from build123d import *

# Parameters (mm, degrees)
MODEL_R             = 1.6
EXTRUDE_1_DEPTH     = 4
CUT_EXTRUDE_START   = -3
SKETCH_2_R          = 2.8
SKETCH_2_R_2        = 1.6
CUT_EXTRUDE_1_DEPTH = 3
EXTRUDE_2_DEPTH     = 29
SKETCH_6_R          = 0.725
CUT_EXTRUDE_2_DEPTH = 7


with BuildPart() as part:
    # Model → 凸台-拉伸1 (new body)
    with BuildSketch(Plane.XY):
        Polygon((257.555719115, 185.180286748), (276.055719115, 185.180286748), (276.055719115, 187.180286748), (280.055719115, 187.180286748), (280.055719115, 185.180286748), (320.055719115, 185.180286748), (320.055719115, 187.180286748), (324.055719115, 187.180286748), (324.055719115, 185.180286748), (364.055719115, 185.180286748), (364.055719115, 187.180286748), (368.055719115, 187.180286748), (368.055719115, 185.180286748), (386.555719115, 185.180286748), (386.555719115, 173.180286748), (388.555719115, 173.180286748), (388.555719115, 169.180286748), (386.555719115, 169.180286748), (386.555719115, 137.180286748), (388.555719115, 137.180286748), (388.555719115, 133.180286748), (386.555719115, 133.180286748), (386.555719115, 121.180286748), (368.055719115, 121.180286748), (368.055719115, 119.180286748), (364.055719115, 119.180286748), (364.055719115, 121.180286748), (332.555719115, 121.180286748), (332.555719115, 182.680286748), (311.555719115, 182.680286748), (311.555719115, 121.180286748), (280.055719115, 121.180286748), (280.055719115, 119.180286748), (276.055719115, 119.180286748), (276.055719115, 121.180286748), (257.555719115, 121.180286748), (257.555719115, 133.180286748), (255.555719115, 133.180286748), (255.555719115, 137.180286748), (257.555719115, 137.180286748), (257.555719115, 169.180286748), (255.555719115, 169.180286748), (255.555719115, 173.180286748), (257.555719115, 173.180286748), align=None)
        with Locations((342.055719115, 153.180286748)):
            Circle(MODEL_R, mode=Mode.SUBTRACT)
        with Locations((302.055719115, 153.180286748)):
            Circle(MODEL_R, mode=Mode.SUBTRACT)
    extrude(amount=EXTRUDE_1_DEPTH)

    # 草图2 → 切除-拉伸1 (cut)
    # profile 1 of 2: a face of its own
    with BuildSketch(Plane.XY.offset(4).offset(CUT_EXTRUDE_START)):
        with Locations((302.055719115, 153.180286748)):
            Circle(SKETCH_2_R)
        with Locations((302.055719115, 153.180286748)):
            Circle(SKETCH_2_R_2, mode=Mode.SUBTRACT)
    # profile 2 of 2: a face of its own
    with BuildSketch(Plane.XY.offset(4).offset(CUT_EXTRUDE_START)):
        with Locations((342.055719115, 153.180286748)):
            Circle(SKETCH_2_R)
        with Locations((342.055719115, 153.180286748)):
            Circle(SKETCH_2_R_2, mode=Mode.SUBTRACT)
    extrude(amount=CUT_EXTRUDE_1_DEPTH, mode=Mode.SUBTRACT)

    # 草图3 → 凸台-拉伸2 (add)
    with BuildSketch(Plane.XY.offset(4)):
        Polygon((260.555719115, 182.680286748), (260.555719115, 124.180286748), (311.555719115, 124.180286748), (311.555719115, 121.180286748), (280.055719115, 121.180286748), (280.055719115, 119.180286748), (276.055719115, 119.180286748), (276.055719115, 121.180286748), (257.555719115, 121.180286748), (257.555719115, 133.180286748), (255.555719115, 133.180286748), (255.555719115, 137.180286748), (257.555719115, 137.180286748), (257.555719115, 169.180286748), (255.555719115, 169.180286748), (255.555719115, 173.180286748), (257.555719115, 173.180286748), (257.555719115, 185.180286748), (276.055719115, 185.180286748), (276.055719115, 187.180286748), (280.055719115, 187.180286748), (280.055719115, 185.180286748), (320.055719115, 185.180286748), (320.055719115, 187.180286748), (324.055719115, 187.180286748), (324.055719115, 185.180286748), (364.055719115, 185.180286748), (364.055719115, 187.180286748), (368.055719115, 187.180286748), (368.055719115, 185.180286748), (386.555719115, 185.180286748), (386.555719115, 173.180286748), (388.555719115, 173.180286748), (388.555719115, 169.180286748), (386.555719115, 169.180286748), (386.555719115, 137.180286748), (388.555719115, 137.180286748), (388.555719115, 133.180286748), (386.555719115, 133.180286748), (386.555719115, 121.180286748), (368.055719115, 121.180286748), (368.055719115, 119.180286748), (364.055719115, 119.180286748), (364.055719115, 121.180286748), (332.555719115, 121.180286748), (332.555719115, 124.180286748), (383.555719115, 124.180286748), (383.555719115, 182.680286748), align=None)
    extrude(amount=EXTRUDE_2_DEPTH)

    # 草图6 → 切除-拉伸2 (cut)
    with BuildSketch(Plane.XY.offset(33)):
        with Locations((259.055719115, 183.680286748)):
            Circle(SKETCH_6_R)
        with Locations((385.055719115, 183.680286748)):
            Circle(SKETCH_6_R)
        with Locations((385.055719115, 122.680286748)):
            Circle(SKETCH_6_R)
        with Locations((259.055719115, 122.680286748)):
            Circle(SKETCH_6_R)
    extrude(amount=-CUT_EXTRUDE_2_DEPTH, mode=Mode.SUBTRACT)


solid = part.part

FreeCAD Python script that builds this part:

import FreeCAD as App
import Part
import Sketcher
Q = App.Units.Quantity


def add_polygon(sketch, points):
    """Adds a closed chain of lines whose ends are joined by coincident constraints."""
    first, n = sketch.GeometryCount, len(points)
    for a, b in zip(points, points[1:] + points[:1]):
        sketch.addGeometry(Part.LineSegment(App.Vector(*a, 0), App.Vector(*b, 0)), False)
    for i in range(n):
        sketch.addConstraint(Sketcher.Constraint("Coincident", first + i, 2, first + (i + 1) % n, 1))

doc = App.newDocument("Part")
body = doc.addObject("PartDesign::Body", "Body")

# Sketch on XY plane
sketch1 = body.newObject("Sketcher::SketchObject", "Sketch")
sketch1.AttachmentSupport = (doc.getObject("XY_Plane"), [""])
sketch1.MapMode = "FlatFace"
add_polygon(sketch1, [(276.1, 185.2), (257.6, 185.2), (257.6, 173.2), (255.6, 173.2), (255.6, 169.2), (257.6, 169.2), (257.6, 137.2), (255.6, 137.2), (255.6, 133.2), (257.6, 133.2), (257.6, 121.2), (276.1, 121.2), (276.1, 119.2), (280.1, 119.2), (280.1, 121.2), (311.6, 121.2), (311.6, 182.7), (332.6, 182.7), (332.6, 121.2), (364.1, 121.2), (364.1, 119.2), (368.1, 119.2), (368.1, 121.2), (386.6, 121.2), (386.6, 133.2), (388.6, 133.2), (388.6, 137.2), (386.6, 137.2), (386.6, 169.2), (388.6, 169.2), (388.6, 173.2), (386.6, 173.2), (386.6, 185.2), (368.1, 185.2), (368.1, 187.2), (364.1, 187.2), (364.1, 185.2), (324.1, 185.2), (324.1, 187.2), (320.1, 187.2), (320.1, 185.2), (280.1, 185.2), (280.1, 187.2), (276.1, 187.2)])  # lines 0-43
sketch1.addGeometry(Part.Circle(App.Vector(342.1, 153.2, 0), App.Vector(0, 0, 1), 1.6), False)  # 44
sketch1.addGeometry(Part.Circle(App.Vector(302.1, 153.2, 0), App.Vector(0, 0, 1), 1.6), False)  # 45
sketch1.addConstraint([
    Sketcher.Constraint("Horizontal", 0),
    Sketcher.Constraint("Vertical", 1),
    Sketcher.Constraint("Horizontal", 2),
    Sketcher.Constraint("Vertical", 3),
    Sketcher.Constraint("Horizontal", 4),
    Sketcher.Constraint("Vertical", 5),
    Sketcher.Constraint("Horizontal", 6),
    Sketcher.Constraint("Vertical", 7),
    Sketcher.Constraint("Horizontal", 8),
    Sketcher.Constraint("Vertical", 9),
    Sketcher.Constraint("Horizontal", 10),
    Sketcher.Constraint("Vertical", 11),
    Sketcher.Constraint("Horizontal", 12),
    Sketcher.Constraint("Vertical", 13),
    Sketcher.Constraint("Horizontal", 14),
    Sketcher.Constraint("Vertical", 15),
    Sketcher.Constraint("Horizontal", 16),
    Sketcher.Constraint("Vertical", 17),
    Sketcher.Constraint("Horizontal", 18),
    Sketcher.Constraint("Vertical", 19),
    Sketcher.Constraint("Horizontal", 20),
    Sketcher.Constraint("Vertical", 21),
    Sketcher.Constraint("Horizontal", 22),
    Sketcher.Constraint("Vertical", 23),
    Sketcher.Constraint("Horizontal", 24),
    Sketcher.Constraint("Vertical", 25),
    Sketcher.Constraint("Horizontal", 26),
    Sketcher.Constraint("Vertical", 27),
    Sketcher.Constraint("Horizontal", 28),
    Sketcher.Constraint("Vertical", 29),
    Sketcher.Constraint("Horizontal", 30),
    Sketcher.Constraint("Vertical", 31),
    Sketcher.Constraint("Horizontal", 32),
    Sketcher.Constraint("Vertical", 33),
    Sketcher.Constraint("Horizontal", 34),
    Sketcher.Constraint("Vertical", 35),
    Sketcher.Constraint("Horizontal", 36),
    Sketcher.Constraint("Vertical", 37),
    Sketcher.Constraint("Horizontal", 38),
    Sketcher.Constraint("Vertical", 39),
    Sketcher.Constraint("Horizontal", 40),
    Sketcher.Constraint("Vertical", 41),
    Sketcher.Constraint("Horizontal", 42),
    Sketcher.Constraint("Vertical", 43),
    Sketcher.Constraint("Equal", 44, 45),
    Sketcher.Constraint("Horizontal", 44, 3, 45, 3),
    Sketcher.Constraint("Horizontal", 10, 2, 13, 2),
    Sketcher.Constraint("Horizontal", 14, 2, 17, 2),
    Sketcher.Constraint("Horizontal", 12, 2, 19, 2),
    Sketcher.Constraint("Horizontal", 18, 2, 21, 2),
    Sketcher.Constraint("Horizontal", 8, 2, 23, 2),
    Sketcher.Constraint("Horizontal", 6, 2, 25, 2),
    Sketcher.Constraint("Horizontal", 4, 2, 27, 2),
    Sketcher.Constraint("Horizontal", 2, 2, 29, 2),
    Sketcher.Constraint("Horizontal", 0, 2, 31, 2),
    Sketcher.Constraint("Horizontal", 32, 2, 35, 2),
    Sketcher.Constraint("Horizontal", 34, 2, 37, 2),
    Sketcher.Constraint("Horizontal", 36, 2, 39, 2),
    Sketcher.Constraint("Horizontal", 38, 2, 41, 2),
    Sketcher.Constraint("Vertical", 1, 2, 4, 2),
    Sketcher.Constraint("Vertical", 3, 2, 6, 2),
    Sketcher.Constraint("Vertical", 5, 2, 8, 2),
    Sketcher.Constraint("Vertical", 23, 2, 26, 2),
    Sketcher.Constraint("Vertical", 25, 2, 28, 2),
    Sketcher.Constraint("Vertical", 27, 2, 30, 2),
    Sketcher.Constraint("Vertical", 21, 2, 32, 2),
    Sketcher.Constraint("Vertical", 19, 2, 34, 2),
    Sketcher.Constraint("Vertical", 13, 2, 40, 2),
    Sketcher.Constraint("Vertical", 11, 2, 42, 2),
    Sketcher.Constraint("Equal", 14, 18),
    Sketcher.Constraint("Equal", 12, 20),
    Sketcher.Constraint("Equal", 10, 22),
    Sketcher.Constraint("Equal", 8, 24),
    Sketcher.Constraint("Equal", 34, 38),
    Sketcher.Constraint("Equal", 36, 40),
    Sketcher.Constraint("Equal", 42, 3),
    Sketcher.Constraint("Equal", 3, 7),
    Sketcher.Constraint("Equal", 1, 9),
    Sketcher.Constraint("Equal", 30, 11),
    Sketcher.Constraint("Equal", 21, 33),
    Sketcher.Constraint("Diameter", 44, Q("3.2 mm")),
    Sketcher.Constraint("DistanceX", 2, 2, 2, 1, Q("2 mm")),
    Sketcher.Constraint("DistanceX", 12, 1, 12, 2, Q("4 mm")),
    Sketcher.Constraint("DistanceX", 16, 1, 16, 2, Q("21 mm")),
    Sketcher.Constraint("DistanceX", 36, 2, 36, 1, Q("40 mm")),
    Sketcher.Constraint("DistanceY", 1, 2, 1, 1, Q("12 mm")),
    Sketcher.Constraint("DistanceY", 5, 2, 5, 1, Q("32 mm")),
    Sketcher.Constraint("DistanceX", 0, 2, 0, 1, Q("18.5 mm")),
    Sketcher.Constraint("DistanceY", 15, 1, 15, 2, Q("61.5 mm")),
    Sketcher.Constraint("DistanceX", 45, 3, 44, 3, Q("40 mm")),
    Sketcher.Constraint("DistanceY", 45, 3, 0, 2, Q("32 mm")),
    Sketcher.Constraint("DistanceX", 44, 3, 18, 2, Q("22 mm")),
    Sketcher.Constraint("DistanceX", -1, 1, 44, 3, Q("342.055719 mm")),
    Sketcher.Constraint("DistanceY", -1, 1, 44, 3, Q("153.180287 mm")),
])
pad1 = body.newObject("PartDesign::Pad", "Pad")
pad1.Profile = sketch1
pad1.Length = 4

# Sketch on XY plane
sketch2 = body.newObject("Sketcher::SketchObject", "Sketch001")
sketch2.AttachmentSupport = (doc.getObject("XY_Plane"), [""])
sketch2.MapMode = "FlatFace"
sketch2.AttachmentOffset = App.Placement(App.Vector(0, 0, 1), App.Rotation())
sketch2.addGeometry([
    Part.Circle(App.Vector(302.1, 153.2, 0), App.Vector(0, 0, 1), 2.8),
    Part.Circle(App.Vector(302.1, 153.2, 0), App.Vector(0, 0, 1), 1.6),
    Part.Circle(App.Vector(342.1, 153.2, 0), App.Vector(0, 0, 1), 2.8),
    Part.Circle(App.Vector(342.1, 153.2, 0), App.Vector(0, 0, 1), 1.6),
], False)
sketch2.addConstraint([
    Sketcher.Constraint("Coincident", 1, 3, 0, 3),
    Sketcher.Constraint("Coincident", 3, 3, 2, 3),
    Sketcher.Constraint("Equal", 0, 2),
    Sketcher.Constraint("Equal", 1, 3),
    Sketcher.Constraint("Horizontal", 1, 3, 2, 3),
    Sketcher.Constraint("Diameter", 0, Q("5.6 mm")),
    Sketcher.Constraint("Diameter", 1, Q("3.2 mm")),
    Sketcher.Constraint("DistanceX", 0, 3, 2, 3, Q("40 mm")),
    Sketcher.Constraint("DistanceX", -1, 1, 0, 3, Q("302.055719 mm")),
    Sketcher.Constraint("DistanceY", -1, 1, 0, 3, Q("153.180287 mm")),
])
pocket1 = body.newObject("PartDesign::Pocket", "Pocket")
pocket1.Profile = sketch2
pocket1.Length = 3
pocket1.Reversed = True

# Sketch on XY plane
sketch3 = body.newObject("Sketcher::SketchObject", "Sketch002")
sketch3.AttachmentSupport = (doc.getObject("XY_Plane"), [""])
sketch3.MapMode = "FlatFace"
sketch3.AttachmentOffset = App.Placement(App.Vector(0, 0, 4), App.Rotation())
add_polygon(sketch3, [(260.6, 124.2), (260.6, 182.7), (383.6, 182.7), (383.6, 124.2), (332.6, 124.2), (332.6, 121.2), (364.1, 121.2), (364.1, 119.2), (368.1, 119.2), (368.1, 121.2), (386.6, 121.2), (386.6, 133.2), (388.6, 133.2), (388.6, 137.2), (386.6, 137.2), (386.6, 169.2), (388.6, 169.2), (388.6, 173.2), (386.6, 173.2), (386.6, 185.2), (368.1, 185.2), (368.1, 187.2), (364.1, 187.2), (364.1, 185.2), (324.1, 185.2), (324.1, 187.2), (320.1, 187.2), (320.1, 185.2), (280.1, 185.2), (280.1, 187.2), (276.1, 187.2), (276.1, 185.2), (257.6, 185.2), (257.6, 173.2), (255.6, 173.2), (255.6, 169.2), (257.6, 169.2), (257.6, 137.2), (255.6, 137.2), (255.6, 133.2), (257.6, 133.2), (257.6, 121.2), (276.1, 121.2), (276.1, 119.2), (280.1, 119.2), (280.1, 121.2), (311.6, 121.2), (311.6, 124.2)])  # lines 0-47
sketch3.addConstraint([
    Sketcher.Constraint("Vertical", 0),
    Sketcher.Constraint("Horizontal", 1),
    Sketcher.Constraint("Vertical", 2),
    Sketcher.Constraint("Horizontal", 3),
    Sketcher.Constraint("Vertical", 4),
    Sketcher.Constraint("Horizontal", 5),
    Sketcher.Constraint("Vertical", 6),
    Sketcher.Constraint("Horizontal", 7),
    Sketcher.Constraint("Vertical", 8),
    Sketcher.Constraint("Horizontal", 9),
    Sketcher.Constraint("Vertical", 10),
    Sketcher.Constraint("Horizontal", 11),
    Sketcher.Constraint("Vertical", 12),
    Sketcher.Constraint("Horizontal", 13),
    Sketcher.Constraint("Vertical", 14),
    Sketcher.Constraint("Horizontal", 15),
    Sketcher.Constraint("Vertical", 16),
    Sketcher.Constraint("Horizontal", 17),
    Sketcher.Constraint("Vertical", 18),
    Sketcher.Constraint("Horizontal", 19),
    Sketcher.Constraint("Vertical", 20),
    Sketcher.Constraint("Horizontal", 21),
    Sketcher.Constraint("Vertical", 22),
    Sketcher.Constraint("Horizontal", 23),
    Sketcher.Constraint("Vertical", 24),
    Sketcher.Constraint("Horizontal", 25),
    Sketcher.Constraint("Vertical", 26),
    Sketcher.Constraint("Horizontal", 27),
    Sketcher.Constraint("Vertical", 28),
    Sketcher.Constraint("Horizontal", 29),
    Sketcher.Constraint("Vertical", 30),
    Sketcher.Constraint("Horizontal", 31),
    Sketcher.Constraint("Vertical", 32),
    Sketcher.Constraint("Horizontal", 33),
    Sketcher.Constraint("Vertical", 34),
    Sketcher.Constraint("Horizontal", 35),
    Sketcher.Constraint("Vertical", 36),
    Sketcher.Constraint("Horizontal", 37),
    Sketcher.Constraint("Vertical", 38),
    Sketcher.Constraint("Horizontal", 39),
    Sketcher.Constraint("Vertical", 40),
    Sketcher.Constraint("Horizontal", 41),
    Sketcher.Constraint("Vertical", 42),
    Sketcher.Constraint("Horizontal", 43),
    Sketcher.Constraint("Vertical", 44),
    Sketcher.Constraint("Horizontal", 45),
    Sketcher.Constraint("Vertical", 46),
    Sketcher.Constraint("Horizontal", 47),
    Sketcher.Constraint("Horizontal", 5, 2, 8, 2),
    Sketcher.Constraint("Horizontal", 19, 2, 22, 2),
    Sketcher.Constraint("Horizontal", 21, 2, 24, 2),
    Sketcher.Constraint("Horizontal", 23, 2, 26, 2),
    Sketcher.Constraint("Horizontal", 25, 2, 28, 2),
    Sketcher.Constraint("Horizontal", 27, 2, 30, 2),
    Sketcher.Constraint("Horizontal", 17, 2, 32, 2),
    Sketcher.Constraint("Horizontal", 15, 2, 34, 2),
    Sketcher.Constraint("Horizontal", 13, 2, 36, 2),
    Sketcher.Constraint("Horizontal", 11, 2, 38, 2),
    Sketcher.Constraint("Horizontal", 9, 2, 40, 2),
    Sketcher.Constraint("Horizontal", 7, 2, 42, 2),
    Sketcher.Constraint("Horizontal", 41, 2, 44, 2),
    Sketcher.Constraint("Horizontal", 3, 2, 46, 2),
    Sketcher.Constraint("Vertical", 10, 2, 13, 2),
    Sketcher.Constraint("Vertical", 12, 2, 15, 2),
    Sketcher.Constraint("Vertical", 14, 2, 17, 2),
    Sketcher.Constraint("Vertical", 8, 2, 19, 2),
    Sketcher.Constraint("Vertical", 6, 2, 21, 2),
    Sketcher.Constraint("Vertical", 32, 2, 35, 2),
    Sketcher.Constraint("Vertical", 34, 2, 37, 2),
    Sketcher.Constraint("Vertical", 36, 2, 39, 2),
    Sketcher.Constraint("Vertical", 30, 2, 41, 2),
    Sketcher.Constraint("Vertical", 28, 2, 43, 2),
    Sketcher.Constraint("Equal", 21, 25),
    Sketcher.Constraint("Equal", 23, 27),
    Sketcher.Constraint("Equal", 25, 29),
    Sketcher.Constraint("Equal", 19, 31),
    Sketcher.Constraint("Equal", 17, 33),
    Sketcher.Constraint("Equal", 5, 45),
    Sketcher.Constraint("Equal", 3, 47),
    Sketcher.Constraint("Equal", 39, 6),
    Sketcher.Constraint("Equal", 43, 12),
    Sketcher.Constraint("Equal", 12, 16),
    Sketcher.Constraint("Equal", 10, 18),
    Sketcher.Constraint("Equal", 8, 20),
    Sketcher.Constraint("DistanceX", 1, 1, 1, 2, Q("123 mm")),
    Sketcher.Constraint("DistanceX", 3, 2, 3, 1, Q("51 mm")),
    Sketcher.Constraint("DistanceX", 7, 1, 7, 2, Q("4 mm")),
    Sketcher.Constraint("DistanceX", 11, 1, 11, 2, Q("2 mm")),
    Sketcher.Constraint("DistanceX", 23, 2, 23, 1, Q("40 mm")),
    Sketcher.Constraint("DistanceY", 4, 2, 4, 1, Q("3 mm")),
    Sketcher.Constraint("DistanceY", 10, 1, 10, 2, Q("12 mm")),
    Sketcher.Constraint("DistanceY", 14, 1, 14, 2, Q("32 mm")),
    Sketcher.Constraint("DistanceX", 9, 1, 9, 2, Q("18.5 mm")),
    Sketcher.Constraint("DistanceY", 0, 1, 0, 2, Q("58.5 mm")),
    Sketcher.Constraint("DistanceX", -1, 1, 0, 2, Q("260.555719 mm")),
    Sketcher.Constraint("DistanceY", -1, 1, 0, 2, Q("182.680287 mm")),
])
pad2 = body.newObject("PartDesign::Pad", "Pad001")
pad2.Profile = sketch3
pad2.Length = 29

# Sketch on XY plane
sketch4 = body.newObject("Sketcher::SketchObject", "Sketch003")
sketch4.AttachmentSupport = (doc.getObject("XY_Plane"), [""])
sketch4.MapMode = "FlatFace"
sketch4.AttachmentOffset = App.Placement(App.Vector(0, 0, 33), App.Rotation())
sketch4.addGeometry([
    Part.Circle(App.Vector(259.1, 183.7, 0), App.Vector(0, 0, 1), 0.7),
    Part.Circle(App.Vector(385.1, 183.7, 0), App.Vector(0, 0, 1), 0.7),
    Part.Circle(App.Vector(385.1, 122.7, 0), App.Vector(0, 0, 1), 0.7),
    Part.Circle(App.Vector(259.1, 122.7, 0), App.Vector(0, 0, 1), 0.7),
], False)
sketch4.addConstraint([
    Sketcher.Constraint("Equal", 0, 1),
    Sketcher.Constraint("Equal", 1, 2),
    Sketcher.Constraint("Equal", 2, 3),
    Sketcher.Constraint("Horizontal", 0, 3, 1, 3),
    Sketcher.Constraint("Horizontal", 2, 3, 3, 3),
    Sketcher.Constraint("Vertical", 1, 3, 2, 3),
    Sketcher.Constraint("Vertical", 0, 3, 3, 3),
    Sketcher.Constraint("Diameter", 0, Q("1.45 mm")),
    Sketcher.Constraint("DistanceX", 0, 3, 1, 3, Q("126 mm")),
    Sketcher.Constraint("DistanceY", 2, 3, 1, 3, Q("61 mm")),
    Sketcher.Constraint("DistanceX", -1, 1, 0, 3, Q("259.055719 mm")),
    Sketcher.Constraint("DistanceY", -1, 1, 0, 3, Q("183.680287 mm")),
])
pocket2 = body.newObject("PartDesign::Pocket", "Pocket001")
pocket2.Profile = sketch4
pocket2.Length = 7

doc.recompute()
